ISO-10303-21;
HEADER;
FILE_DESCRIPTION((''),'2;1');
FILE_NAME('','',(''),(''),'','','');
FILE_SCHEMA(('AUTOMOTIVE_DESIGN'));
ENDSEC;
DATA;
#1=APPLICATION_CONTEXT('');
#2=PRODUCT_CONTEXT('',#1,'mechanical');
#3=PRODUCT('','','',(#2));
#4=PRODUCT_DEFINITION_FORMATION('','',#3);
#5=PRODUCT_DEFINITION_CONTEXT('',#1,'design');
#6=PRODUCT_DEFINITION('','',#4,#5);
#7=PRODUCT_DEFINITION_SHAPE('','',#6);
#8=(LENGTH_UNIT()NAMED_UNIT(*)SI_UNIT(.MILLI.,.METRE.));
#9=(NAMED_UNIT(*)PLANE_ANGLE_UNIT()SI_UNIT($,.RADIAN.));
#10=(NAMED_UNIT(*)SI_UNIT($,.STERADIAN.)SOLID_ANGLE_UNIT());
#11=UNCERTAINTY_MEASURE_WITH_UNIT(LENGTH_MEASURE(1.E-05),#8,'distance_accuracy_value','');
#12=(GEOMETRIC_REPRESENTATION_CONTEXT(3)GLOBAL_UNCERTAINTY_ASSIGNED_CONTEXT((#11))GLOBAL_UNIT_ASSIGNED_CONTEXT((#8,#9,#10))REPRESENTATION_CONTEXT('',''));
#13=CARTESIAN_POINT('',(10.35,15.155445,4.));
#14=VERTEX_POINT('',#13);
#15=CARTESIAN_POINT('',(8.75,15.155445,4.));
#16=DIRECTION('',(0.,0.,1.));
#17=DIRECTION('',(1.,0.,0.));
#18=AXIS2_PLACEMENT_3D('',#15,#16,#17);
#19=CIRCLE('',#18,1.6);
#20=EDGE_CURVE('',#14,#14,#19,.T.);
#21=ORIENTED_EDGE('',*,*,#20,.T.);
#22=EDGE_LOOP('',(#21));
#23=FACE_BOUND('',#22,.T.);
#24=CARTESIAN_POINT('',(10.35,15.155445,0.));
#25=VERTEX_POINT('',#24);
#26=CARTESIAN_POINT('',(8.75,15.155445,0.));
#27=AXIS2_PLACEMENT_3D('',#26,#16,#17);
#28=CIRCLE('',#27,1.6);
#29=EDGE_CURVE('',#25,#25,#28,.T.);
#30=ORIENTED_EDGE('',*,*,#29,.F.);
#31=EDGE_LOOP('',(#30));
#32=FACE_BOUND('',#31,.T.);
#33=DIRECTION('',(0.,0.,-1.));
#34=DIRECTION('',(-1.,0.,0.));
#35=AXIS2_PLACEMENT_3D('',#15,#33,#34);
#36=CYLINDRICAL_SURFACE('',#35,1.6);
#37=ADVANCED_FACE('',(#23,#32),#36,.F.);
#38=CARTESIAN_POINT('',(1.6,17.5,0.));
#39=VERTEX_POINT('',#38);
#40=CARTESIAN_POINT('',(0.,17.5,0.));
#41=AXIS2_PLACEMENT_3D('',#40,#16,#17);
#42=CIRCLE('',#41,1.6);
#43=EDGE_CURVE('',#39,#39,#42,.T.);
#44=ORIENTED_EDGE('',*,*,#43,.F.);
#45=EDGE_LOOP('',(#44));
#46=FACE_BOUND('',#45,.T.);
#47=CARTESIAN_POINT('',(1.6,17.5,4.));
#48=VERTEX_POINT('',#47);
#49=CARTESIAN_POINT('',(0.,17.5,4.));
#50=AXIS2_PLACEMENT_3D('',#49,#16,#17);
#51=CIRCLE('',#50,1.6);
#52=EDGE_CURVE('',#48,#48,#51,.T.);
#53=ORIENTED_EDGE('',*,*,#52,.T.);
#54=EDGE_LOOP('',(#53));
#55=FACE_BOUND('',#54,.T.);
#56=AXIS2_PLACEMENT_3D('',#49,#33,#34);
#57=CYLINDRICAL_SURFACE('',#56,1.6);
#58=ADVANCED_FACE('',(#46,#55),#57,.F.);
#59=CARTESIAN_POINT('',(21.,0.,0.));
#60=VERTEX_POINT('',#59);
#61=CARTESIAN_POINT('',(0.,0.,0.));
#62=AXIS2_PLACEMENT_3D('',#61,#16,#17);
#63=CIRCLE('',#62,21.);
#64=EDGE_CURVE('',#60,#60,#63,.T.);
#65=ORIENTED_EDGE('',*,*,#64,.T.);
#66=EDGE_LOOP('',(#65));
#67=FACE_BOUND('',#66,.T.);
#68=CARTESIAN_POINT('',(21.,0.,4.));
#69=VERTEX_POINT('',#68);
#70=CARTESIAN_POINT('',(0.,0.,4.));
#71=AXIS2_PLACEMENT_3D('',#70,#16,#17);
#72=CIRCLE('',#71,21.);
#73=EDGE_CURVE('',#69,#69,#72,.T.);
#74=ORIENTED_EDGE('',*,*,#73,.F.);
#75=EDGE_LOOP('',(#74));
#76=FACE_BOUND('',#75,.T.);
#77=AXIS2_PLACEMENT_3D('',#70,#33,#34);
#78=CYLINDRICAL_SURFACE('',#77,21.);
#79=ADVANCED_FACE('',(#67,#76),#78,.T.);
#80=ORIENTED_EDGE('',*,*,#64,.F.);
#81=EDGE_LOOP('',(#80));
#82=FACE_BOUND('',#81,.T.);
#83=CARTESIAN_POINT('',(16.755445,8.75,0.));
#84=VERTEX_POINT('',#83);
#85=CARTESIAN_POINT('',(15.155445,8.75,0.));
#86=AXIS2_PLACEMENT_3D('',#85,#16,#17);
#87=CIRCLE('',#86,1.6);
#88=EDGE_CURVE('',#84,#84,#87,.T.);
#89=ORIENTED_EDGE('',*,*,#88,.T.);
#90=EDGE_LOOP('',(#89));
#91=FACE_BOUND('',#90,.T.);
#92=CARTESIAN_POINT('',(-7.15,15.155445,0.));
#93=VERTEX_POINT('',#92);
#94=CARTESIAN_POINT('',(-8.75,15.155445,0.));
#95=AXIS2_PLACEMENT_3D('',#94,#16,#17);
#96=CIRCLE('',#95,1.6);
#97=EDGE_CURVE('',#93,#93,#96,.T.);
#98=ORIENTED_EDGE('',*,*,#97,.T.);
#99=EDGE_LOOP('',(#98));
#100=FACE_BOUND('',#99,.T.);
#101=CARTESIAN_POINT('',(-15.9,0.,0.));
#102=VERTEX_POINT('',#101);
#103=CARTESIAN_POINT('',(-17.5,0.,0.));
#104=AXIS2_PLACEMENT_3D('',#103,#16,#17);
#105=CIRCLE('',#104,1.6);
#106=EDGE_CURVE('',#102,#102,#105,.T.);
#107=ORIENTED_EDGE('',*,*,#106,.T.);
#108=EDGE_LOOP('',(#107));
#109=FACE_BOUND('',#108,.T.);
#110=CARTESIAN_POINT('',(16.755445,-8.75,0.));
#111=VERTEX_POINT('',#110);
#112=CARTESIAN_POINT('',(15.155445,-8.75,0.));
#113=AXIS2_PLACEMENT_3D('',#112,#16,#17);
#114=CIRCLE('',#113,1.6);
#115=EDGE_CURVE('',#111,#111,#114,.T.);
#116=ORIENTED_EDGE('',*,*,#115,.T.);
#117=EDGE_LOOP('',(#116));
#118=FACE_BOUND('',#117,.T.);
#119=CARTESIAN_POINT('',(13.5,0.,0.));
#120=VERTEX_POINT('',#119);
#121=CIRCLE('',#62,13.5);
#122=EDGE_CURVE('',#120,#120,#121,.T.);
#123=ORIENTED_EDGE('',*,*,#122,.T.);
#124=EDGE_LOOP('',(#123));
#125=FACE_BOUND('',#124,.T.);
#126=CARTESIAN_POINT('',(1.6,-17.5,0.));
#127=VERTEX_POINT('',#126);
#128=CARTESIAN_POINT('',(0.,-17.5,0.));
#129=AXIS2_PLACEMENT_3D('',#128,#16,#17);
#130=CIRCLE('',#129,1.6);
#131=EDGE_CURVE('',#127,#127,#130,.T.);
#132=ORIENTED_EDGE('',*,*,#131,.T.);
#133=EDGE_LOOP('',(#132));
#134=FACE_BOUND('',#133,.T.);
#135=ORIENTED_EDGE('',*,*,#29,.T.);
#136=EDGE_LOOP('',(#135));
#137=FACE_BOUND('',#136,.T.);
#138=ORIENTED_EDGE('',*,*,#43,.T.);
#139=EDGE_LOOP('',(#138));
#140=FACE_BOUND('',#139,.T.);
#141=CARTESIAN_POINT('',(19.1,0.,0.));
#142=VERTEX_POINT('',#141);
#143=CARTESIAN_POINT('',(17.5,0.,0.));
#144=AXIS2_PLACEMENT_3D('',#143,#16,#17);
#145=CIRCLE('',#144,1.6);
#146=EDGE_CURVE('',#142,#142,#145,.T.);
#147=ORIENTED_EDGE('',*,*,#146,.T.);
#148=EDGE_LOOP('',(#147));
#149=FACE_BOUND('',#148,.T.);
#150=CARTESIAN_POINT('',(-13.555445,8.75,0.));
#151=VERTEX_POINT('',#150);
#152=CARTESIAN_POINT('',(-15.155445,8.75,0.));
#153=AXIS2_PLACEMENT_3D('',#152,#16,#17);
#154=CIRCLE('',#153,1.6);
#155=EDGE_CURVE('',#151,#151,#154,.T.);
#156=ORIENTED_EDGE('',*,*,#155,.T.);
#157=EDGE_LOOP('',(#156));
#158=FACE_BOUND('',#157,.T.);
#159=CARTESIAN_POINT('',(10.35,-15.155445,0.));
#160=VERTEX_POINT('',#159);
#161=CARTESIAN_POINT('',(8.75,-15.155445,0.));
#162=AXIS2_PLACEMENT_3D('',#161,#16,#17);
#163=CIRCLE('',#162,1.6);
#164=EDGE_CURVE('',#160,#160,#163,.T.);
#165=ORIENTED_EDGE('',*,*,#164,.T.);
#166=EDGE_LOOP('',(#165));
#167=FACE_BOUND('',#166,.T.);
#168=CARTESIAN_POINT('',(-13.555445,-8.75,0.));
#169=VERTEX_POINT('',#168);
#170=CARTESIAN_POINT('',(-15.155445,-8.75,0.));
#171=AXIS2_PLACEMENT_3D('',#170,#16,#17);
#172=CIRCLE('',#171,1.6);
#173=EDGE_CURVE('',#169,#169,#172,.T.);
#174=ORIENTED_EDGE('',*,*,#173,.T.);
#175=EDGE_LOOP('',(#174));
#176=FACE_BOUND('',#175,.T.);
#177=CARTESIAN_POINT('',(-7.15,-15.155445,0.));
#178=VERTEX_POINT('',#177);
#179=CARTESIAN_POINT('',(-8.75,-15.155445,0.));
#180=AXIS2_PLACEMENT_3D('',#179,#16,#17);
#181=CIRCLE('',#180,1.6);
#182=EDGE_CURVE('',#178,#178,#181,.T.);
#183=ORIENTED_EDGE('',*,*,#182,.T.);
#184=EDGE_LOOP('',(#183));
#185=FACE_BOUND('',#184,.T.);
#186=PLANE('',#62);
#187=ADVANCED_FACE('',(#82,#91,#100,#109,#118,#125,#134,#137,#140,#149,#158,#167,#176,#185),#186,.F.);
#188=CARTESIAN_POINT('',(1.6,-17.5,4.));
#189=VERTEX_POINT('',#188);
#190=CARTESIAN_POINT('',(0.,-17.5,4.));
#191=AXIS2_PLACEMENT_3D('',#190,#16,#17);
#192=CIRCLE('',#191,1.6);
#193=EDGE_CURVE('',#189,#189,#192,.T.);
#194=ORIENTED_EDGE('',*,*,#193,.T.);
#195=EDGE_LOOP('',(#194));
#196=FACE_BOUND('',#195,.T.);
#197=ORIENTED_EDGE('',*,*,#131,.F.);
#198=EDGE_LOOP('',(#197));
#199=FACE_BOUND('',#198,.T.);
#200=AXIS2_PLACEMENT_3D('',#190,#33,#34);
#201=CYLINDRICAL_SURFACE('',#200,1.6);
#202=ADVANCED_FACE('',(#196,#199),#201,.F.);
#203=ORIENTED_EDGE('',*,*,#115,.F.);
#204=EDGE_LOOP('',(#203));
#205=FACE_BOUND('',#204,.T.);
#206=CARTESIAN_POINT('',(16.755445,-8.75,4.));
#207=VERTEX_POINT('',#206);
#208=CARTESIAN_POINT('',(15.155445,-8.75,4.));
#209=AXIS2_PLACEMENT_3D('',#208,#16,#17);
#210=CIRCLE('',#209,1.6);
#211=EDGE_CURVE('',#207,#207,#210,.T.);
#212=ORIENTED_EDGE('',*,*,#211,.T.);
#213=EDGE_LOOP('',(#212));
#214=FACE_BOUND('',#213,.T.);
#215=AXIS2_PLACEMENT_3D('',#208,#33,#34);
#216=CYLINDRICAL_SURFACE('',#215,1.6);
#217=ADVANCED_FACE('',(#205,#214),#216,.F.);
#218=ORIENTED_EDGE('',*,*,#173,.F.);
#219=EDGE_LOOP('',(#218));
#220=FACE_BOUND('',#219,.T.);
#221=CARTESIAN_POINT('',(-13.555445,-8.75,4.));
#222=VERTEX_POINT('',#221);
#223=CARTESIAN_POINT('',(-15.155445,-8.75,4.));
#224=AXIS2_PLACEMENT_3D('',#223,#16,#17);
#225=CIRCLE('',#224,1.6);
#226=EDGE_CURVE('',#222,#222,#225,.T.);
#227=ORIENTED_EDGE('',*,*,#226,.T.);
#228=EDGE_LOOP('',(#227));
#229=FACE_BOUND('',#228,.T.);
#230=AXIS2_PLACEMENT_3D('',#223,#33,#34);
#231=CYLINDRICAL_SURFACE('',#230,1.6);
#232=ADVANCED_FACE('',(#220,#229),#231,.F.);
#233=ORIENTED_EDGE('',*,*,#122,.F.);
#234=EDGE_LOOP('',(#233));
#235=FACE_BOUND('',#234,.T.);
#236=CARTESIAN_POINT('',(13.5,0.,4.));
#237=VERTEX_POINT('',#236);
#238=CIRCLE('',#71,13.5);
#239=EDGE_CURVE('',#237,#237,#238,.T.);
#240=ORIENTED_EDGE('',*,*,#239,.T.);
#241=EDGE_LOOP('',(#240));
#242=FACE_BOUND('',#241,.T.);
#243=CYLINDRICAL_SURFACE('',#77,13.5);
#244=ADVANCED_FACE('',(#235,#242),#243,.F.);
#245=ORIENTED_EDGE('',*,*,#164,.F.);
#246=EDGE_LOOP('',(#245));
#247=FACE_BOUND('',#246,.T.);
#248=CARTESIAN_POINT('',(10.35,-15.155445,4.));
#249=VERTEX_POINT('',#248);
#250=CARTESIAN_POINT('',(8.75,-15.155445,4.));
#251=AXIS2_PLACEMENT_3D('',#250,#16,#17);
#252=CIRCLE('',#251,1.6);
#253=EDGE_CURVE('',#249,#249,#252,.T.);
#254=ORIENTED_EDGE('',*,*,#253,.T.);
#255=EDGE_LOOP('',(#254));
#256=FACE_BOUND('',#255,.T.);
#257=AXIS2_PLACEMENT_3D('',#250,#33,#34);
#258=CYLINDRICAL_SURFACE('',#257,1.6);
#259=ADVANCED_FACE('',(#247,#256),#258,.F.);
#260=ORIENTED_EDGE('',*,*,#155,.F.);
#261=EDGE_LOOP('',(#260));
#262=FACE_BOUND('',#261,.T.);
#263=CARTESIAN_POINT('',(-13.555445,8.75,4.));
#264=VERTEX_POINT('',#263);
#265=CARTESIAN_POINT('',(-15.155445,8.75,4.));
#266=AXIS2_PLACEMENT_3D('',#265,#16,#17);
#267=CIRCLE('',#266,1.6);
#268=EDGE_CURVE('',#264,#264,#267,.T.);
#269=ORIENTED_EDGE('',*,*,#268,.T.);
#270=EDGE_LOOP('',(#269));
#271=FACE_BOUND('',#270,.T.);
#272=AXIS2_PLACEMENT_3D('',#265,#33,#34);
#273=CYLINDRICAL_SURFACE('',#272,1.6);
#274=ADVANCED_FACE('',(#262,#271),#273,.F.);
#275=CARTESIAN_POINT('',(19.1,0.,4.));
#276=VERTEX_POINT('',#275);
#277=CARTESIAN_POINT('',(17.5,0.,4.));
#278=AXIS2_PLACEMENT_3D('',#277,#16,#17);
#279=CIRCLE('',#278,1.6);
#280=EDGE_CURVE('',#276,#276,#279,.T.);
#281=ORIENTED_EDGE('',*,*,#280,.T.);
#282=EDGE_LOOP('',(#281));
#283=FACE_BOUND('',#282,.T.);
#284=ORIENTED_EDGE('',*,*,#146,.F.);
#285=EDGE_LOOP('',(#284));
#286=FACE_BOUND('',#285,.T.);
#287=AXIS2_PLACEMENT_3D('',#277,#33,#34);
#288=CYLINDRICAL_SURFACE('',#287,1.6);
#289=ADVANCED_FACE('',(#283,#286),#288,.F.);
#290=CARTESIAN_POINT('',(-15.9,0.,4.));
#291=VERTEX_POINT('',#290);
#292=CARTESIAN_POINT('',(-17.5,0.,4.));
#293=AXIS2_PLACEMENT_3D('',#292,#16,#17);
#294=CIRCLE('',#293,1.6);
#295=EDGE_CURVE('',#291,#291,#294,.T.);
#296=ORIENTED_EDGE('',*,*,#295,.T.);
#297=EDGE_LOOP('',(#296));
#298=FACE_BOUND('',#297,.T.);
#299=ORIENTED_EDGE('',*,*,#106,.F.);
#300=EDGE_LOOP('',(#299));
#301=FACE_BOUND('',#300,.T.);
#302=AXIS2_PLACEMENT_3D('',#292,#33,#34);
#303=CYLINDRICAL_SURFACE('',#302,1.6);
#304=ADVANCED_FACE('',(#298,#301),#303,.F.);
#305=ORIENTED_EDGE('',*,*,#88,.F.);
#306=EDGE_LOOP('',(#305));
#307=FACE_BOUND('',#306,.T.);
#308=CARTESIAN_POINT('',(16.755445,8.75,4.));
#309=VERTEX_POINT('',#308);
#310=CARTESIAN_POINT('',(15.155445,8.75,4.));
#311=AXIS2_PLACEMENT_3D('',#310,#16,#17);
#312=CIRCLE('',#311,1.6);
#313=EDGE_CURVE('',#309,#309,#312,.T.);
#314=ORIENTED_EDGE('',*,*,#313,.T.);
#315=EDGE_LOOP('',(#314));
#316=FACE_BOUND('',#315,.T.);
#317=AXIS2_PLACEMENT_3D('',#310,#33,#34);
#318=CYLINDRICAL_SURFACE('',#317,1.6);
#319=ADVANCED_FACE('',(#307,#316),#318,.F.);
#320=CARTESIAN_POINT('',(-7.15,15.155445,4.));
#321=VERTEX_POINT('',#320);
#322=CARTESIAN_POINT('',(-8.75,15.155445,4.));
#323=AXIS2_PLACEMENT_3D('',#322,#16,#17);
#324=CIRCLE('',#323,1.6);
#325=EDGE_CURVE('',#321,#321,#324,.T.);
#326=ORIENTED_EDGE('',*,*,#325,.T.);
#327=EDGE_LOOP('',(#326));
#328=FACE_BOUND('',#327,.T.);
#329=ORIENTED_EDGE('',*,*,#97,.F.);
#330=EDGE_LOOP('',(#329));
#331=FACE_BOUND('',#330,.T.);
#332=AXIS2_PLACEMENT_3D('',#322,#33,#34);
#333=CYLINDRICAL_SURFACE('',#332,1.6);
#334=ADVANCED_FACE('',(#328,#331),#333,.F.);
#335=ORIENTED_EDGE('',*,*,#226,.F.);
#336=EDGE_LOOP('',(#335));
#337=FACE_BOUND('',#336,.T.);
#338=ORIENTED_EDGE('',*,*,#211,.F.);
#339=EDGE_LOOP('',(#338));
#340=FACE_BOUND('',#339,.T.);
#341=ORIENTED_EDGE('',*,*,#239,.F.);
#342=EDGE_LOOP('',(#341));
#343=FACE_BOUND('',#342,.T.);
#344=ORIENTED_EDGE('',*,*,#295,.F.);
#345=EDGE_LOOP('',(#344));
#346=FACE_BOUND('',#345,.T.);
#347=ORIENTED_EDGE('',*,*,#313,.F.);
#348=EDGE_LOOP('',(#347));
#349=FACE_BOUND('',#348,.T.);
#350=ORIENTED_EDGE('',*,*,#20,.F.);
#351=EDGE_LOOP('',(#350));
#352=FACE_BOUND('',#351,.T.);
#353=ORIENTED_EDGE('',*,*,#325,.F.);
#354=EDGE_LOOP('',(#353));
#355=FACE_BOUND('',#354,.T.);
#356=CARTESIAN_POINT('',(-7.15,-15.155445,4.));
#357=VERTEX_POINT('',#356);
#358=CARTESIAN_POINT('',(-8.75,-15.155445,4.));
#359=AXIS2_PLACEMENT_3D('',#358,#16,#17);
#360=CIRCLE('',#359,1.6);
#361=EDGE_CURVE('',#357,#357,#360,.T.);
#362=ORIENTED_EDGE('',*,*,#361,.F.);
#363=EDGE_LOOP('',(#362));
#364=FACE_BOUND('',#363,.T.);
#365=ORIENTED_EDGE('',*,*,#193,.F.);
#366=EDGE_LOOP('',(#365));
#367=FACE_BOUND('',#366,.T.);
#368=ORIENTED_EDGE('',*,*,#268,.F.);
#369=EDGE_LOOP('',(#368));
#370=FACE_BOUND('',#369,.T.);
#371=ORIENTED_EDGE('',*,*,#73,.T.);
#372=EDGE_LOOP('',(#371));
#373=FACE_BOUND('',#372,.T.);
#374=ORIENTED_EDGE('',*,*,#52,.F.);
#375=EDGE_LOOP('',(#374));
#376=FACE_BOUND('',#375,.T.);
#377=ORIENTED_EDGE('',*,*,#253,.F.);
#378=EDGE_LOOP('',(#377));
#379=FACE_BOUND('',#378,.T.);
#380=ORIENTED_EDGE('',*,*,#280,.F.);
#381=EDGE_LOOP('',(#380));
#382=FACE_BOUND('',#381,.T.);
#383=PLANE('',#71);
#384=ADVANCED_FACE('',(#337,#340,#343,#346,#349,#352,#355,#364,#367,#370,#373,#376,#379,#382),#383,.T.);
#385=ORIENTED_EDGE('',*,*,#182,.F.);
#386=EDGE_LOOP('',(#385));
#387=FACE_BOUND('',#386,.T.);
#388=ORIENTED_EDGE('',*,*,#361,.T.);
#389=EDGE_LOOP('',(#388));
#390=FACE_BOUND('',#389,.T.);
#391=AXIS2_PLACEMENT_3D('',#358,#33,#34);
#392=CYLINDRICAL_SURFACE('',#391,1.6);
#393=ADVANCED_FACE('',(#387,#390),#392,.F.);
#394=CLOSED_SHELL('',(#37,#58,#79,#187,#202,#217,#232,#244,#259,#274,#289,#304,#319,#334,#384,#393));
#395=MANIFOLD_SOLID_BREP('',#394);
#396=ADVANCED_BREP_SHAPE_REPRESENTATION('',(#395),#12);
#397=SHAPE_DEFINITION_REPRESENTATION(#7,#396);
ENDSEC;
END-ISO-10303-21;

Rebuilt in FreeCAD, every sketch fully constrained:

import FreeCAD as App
import Part
import Sketcher

V = App.Vector

doc = App.newDocument("Part")
params = doc.addObject("Spreadsheet::Sheet", "Params")
for row, (alias, value) in enumerate([
    ("sketch1_diameter", "42 mm"),
    ("sketch1_diameter2", "27 mm"),
    ("sketch1_diameter3", "3.2 mm"),
    ("pad1_length", "4 mm"),
], start=1):
    params.set(f"A{row}", alias)
    params.set(f"B{row}", "=" + value)
    params.setAlias(f"B{row}", alias)

body = doc.addObject("PartDesign::Body", "Body")

# Sketch on XY plane
sketch1 = body.newObject("Sketcher::SketchObject", "Sketch")
sketch1.AttachmentSupport = (doc.getObject("XY_Plane"), [""])
sketch1.MapMode = "FlatFace"
sketch1.addGeometry(Part.Circle(V(0, 0, 0), V(0, 0, 1), 21), False)
sketch1.addGeometry(Part.Circle(V(-8.75, -15.155445, 0), V(0, 0, 1), 1.6), False)
sketch1.addGeometry(Part.Circle(V(0, -17.5, 0), V(0, 0, 1), 1.6), False)
sketch1.addGeometry(Part.Circle(V(-15.155445, -8.75, 0), V(0, 0, 1), 1.6), False)
sketch1.addGeometry(Part.Circle(V(-17.5, 0, 0), V(0, 0, 1), 1.6), False)
sketch1.addGeometry(Part.Circle(V(0, 0, 0), V(0, 0, 1), 13.5), False)
sketch1.addGeometry(Part.Circle(V(8.75, -15.155445, 0), V(0, 0, 1), 1.6), False)
sketch1.addGeometry(Part.Circle(V(15.155445, -8.75, 0), V(0, 0, 1), 1.6), False)
sketch1.addGeometry(Part.Circle(V(17.5, 0, 0), V(0, 0, 1), 1.6), False)
sketch1.addGeometry(Part.Circle(V(-15.155445, 8.75, 0), V(0, 0, 1), 1.6), False)
sketch1.addGeometry(Part.Circle(V(-8.75, 15.155445, 0), V(0, 0, 1), 1.6), False)
sketch1.addGeometry(Part.Circle(V(0, 17.5, 0), V(0, 0, 1), 1.6), False)
sketch1.addGeometry(Part.Circle(V(15.155445, 8.75, 0), V(0, 0, 1), 1.6), False)
sketch1.addGeometry(Part.Circle(V(8.75, 15.155445, 0), V(0, 0, 1), 1.6), False)
sketch1.addConstraint(Sketcher.Constraint("Coincident", 0, 3, -1, 1))
sketch1.addConstraint(Sketcher.Constraint("Coincident", 5, 3, -1, 1))
sketch1.addConstraint(Sketcher.Constraint("Equal", 1, 2))
sketch1.addConstraint(Sketcher.Constraint("Equal", 2, 3))
sketch1.addConstraint(Sketcher.Constraint("Equal", 3, 4))
sketch1.addConstraint(Sketcher.Constraint("Equal", 4, 6))
sketch1.addConstraint(Sketcher.Constraint("Equal", 6, 7))
sketch1.addConstraint(Sketcher.Constraint("Equal", 7, 8))
sketch1.addConstraint(Sketcher.Constraint("Equal", 8, 9))
sketch1.addConstraint(Sketcher.Constraint("Equal", 9, 10))
sketch1.addConstraint(Sketcher.Constraint("Equal", 10, 11))
sketch1.addConstraint(Sketcher.Constraint("Equal", 11, 12))
sketch1.addConstraint(Sketcher.Constraint("Equal", 12, 13))
sketch1.addConstraint(Sketcher.Constraint("Symmetric", 4, 3, 8, 3, -1, 1))
sketch1.addConstraint(Sketcher.Constraint("Symmetric", 7, 3, 9, 3, -1, 1))
sketch1.addConstraint(Sketcher.Constraint("Symmetric", 6, 3, 10, 3, -1, 1))
sketch1.addConstraint(Sketcher.Constraint("Symmetric", 2, 3, 11, 3, -1, 1))
sketch1.addConstraint(Sketcher.Constraint("Symmetric", 3, 3, 12, 3, -1, 1))
sketch1.addConstraint(Sketcher.Constraint("Symmetric", 1, 3, 13, 3, -1, 1))
sketch1.addConstraint(Sketcher.Constraint("Symmetric", 1, 3, 6, 3, -2))
sketch1.addConstraint(Sketcher.Constraint("Symmetric", 3, 3, 7, 3, -2))
sketch1.addConstraint(Sketcher.Constraint("PointOnObject", 2, 3, -2))
sketch1.addConstraint(Sketcher.Constraint("PointOnObject", 4, 3, -1))
sketch1.addConstraint(Sketcher.Constraint("Diameter", 0, 42.0))
sketch1.addConstraint(Sketcher.Constraint("Diameter", 5, 27.0))
sketch1.addConstraint(Sketcher.Constraint("Diameter", 1, 3.2))
sketch1.addConstraint(Sketcher.Constraint("DistanceY", 2, 3, -1, 1, 17.5))
sketch1.addConstraint(Sketcher.Constraint("DistanceX", 4, 3, -1, 1, 17.5))
sketch1.addConstraint(Sketcher.Constraint("DistanceX", 1, 3, 6, 3, 17.5))
sketch1.addConstraint(Sketcher.Constraint("DistanceY", 3, 3, 9, 3, 17.5))
sketch1.addConstraint(Sketcher.Constraint("DistanceY", 1, 3, -1, 1, 15.155445))
sketch1.addConstraint(Sketcher.Constraint("DistanceX", 3, 3, -1, 1, 15.155445))
sketch1.setExpression("Constraints[23]", "Params.sketch1_diameter")
sketch1.setExpression("Constraints[24]", "Params.sketch1_diameter2")
sketch1.setExpression("Constraints[25]", "Params.sketch1_diameter3")
pad1 = body.newObject("PartDesign::Pad", "Pad")
pad1.Profile = sketch1
pad1.setExpression("Length", "Params.pad1_length")

doc.recompute()
